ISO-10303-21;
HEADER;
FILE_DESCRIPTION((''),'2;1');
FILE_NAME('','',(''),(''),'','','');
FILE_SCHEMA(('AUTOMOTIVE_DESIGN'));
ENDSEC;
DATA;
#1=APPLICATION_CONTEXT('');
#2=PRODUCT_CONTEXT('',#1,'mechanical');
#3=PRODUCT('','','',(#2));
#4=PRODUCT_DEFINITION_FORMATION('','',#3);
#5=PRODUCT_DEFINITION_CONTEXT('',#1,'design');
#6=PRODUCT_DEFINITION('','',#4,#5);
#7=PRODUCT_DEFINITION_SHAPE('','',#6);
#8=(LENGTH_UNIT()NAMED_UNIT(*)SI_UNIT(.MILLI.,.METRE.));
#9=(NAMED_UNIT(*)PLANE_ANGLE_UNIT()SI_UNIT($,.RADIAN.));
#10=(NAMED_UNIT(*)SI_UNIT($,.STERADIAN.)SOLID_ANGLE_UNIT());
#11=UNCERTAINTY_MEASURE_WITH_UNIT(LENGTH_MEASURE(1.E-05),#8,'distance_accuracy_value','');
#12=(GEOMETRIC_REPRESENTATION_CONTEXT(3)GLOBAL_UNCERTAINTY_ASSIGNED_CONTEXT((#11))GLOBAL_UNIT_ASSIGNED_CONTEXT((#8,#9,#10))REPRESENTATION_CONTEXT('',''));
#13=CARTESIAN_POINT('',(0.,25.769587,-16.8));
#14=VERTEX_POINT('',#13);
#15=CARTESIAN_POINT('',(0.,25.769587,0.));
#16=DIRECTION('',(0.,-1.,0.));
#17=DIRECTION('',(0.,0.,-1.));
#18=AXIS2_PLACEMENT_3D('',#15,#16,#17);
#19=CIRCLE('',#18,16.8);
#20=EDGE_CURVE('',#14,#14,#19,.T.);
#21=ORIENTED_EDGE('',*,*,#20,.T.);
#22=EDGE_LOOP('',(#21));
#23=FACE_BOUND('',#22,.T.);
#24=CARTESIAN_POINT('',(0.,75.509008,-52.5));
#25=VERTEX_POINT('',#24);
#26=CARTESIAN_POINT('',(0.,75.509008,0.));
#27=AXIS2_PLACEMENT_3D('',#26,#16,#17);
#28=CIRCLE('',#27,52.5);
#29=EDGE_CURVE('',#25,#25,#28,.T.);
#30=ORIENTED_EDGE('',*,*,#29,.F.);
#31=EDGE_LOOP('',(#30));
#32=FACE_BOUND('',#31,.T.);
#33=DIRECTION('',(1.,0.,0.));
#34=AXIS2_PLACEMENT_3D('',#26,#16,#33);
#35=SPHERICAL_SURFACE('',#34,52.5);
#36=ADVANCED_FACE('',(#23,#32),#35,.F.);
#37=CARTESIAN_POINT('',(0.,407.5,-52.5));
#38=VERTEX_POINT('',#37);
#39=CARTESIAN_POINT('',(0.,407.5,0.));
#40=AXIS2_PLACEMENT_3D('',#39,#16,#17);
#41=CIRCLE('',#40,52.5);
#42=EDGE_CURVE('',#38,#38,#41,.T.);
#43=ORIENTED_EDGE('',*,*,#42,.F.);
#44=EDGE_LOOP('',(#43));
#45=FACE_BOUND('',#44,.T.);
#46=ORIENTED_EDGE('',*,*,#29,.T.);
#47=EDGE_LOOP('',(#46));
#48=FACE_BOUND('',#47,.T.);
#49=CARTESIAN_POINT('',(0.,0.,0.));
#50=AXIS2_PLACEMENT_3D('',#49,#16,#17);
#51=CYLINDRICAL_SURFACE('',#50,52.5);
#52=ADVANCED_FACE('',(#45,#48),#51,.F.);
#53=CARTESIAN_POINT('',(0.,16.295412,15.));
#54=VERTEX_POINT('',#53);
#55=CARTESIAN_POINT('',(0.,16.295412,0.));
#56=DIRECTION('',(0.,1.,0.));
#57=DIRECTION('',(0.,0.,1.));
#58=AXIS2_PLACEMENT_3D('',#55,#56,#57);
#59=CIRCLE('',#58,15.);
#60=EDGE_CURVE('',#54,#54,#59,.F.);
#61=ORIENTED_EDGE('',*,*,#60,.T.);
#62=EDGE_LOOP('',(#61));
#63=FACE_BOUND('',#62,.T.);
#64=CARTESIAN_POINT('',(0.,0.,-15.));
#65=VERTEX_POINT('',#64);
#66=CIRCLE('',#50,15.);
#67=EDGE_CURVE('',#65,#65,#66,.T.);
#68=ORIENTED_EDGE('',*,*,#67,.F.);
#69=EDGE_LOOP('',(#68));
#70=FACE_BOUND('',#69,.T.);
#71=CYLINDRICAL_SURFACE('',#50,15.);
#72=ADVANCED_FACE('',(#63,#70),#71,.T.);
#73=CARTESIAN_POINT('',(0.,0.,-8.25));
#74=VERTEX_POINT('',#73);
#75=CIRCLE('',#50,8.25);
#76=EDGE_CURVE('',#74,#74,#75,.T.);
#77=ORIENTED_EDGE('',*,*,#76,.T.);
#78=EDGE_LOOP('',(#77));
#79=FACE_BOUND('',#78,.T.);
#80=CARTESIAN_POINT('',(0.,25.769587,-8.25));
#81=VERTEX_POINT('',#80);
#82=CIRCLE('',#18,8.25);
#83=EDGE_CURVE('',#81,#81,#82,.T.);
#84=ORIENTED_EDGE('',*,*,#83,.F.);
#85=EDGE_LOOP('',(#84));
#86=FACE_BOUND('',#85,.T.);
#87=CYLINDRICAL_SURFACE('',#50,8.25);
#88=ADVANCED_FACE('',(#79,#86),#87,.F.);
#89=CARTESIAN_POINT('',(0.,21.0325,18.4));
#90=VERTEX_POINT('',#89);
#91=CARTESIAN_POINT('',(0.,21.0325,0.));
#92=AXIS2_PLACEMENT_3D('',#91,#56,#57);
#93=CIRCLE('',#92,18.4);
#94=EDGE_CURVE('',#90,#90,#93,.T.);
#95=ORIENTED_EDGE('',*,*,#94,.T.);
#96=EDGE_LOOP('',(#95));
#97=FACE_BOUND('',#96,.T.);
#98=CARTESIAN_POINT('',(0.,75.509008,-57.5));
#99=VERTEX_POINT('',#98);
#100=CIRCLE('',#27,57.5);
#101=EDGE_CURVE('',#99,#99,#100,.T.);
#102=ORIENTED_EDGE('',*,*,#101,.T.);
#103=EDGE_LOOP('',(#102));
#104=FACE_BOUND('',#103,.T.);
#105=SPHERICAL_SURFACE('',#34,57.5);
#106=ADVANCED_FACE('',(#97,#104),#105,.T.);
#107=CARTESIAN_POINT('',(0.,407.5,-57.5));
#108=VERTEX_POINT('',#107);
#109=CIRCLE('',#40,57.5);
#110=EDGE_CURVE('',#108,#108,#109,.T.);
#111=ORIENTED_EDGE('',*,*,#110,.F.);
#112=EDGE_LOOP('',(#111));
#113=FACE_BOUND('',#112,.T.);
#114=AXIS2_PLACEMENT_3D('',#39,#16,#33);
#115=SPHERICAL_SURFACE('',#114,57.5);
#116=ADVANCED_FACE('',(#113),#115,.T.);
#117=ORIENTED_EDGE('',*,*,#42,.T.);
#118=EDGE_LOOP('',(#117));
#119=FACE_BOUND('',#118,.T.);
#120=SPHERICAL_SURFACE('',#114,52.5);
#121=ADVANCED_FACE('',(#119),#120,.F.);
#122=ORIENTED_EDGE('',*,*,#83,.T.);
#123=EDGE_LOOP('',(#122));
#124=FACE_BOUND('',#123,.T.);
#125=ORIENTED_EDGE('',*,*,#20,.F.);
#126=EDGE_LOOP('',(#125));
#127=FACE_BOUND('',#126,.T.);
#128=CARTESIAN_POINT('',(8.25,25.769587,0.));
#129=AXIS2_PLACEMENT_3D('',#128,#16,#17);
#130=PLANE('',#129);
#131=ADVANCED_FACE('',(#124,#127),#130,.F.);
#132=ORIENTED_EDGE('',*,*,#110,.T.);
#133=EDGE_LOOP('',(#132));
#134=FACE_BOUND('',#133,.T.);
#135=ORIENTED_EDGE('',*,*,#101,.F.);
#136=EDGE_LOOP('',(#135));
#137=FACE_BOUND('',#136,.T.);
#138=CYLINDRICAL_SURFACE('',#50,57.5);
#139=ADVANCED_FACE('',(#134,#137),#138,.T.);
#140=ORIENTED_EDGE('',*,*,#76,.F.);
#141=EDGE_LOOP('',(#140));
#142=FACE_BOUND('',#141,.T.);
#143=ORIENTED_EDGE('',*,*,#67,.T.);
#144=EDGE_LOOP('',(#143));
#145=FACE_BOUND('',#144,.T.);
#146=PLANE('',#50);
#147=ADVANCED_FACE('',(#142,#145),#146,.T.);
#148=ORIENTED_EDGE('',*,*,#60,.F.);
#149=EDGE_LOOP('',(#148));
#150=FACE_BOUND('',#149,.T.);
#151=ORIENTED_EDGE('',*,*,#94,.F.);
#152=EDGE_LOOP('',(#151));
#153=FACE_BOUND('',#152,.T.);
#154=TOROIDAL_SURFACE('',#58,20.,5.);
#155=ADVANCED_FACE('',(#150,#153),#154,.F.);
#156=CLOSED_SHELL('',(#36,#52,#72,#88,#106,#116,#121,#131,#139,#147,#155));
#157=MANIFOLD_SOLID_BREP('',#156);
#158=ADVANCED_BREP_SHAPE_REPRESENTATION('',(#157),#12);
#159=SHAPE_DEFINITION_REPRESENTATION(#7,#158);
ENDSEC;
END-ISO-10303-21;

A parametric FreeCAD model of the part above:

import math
import FreeCAD as App
import Part
import Sketcher
from FreeCAD import Vector


def edges_at(feature, points):
    """Names of the edges that pass closest to the given points."""
    edges = feature.Shape.Edges
    near = lambda p: min(range(len(edges)), key=lambda i: edges[i].distToShape(Part.Vertex(*p))[0])
    return sorted({f"Edge{near(p) + 1}" for p in points})

doc = App.newDocument("Part")
body = doc.addObject("PartDesign::Body", "Body")

sketch1 = body.newObject("Sketcher::SketchObject", "Sketch")
sketch1.AttachmentSupport = (doc.getObject("XY_Plane"), [""])
sketch1.MapMode = "FlatFace"
sketch1.addGeometry([
    Part.LineSegment(Vector(0, 0, 0), Vector(15, 0, 0)),
    Part.LineSegment(Vector(15, 0, 0), Vector(15, 20, 0)),
    Part.ArcOfCircle(Part.Circle(Vector(0, 76, 0), Vector(0, 0, 1), 58), math.radians(-75), math.radians(0)),
    Part.LineSegment(Vector(58, 76, 0), Vector(58, 408, 0)),
    Part.ArcOfCircle(Part.Circle(Vector(0, 407, 0), Vector(0, 0, 1), 58), math.radians(0), math.radians(90)),
    Part.LineSegment(Vector(0, 465, 0), Vector(0, 0, 0)),
], False)
sketch1.addConstraint([
    Sketcher.Constraint("Coincident", 0, 2, 1, 1),
    Sketcher.Constraint("Coincident", 1, 2, 2, 1),
    Sketcher.Constraint("Tangent", 2, 2, 3, 1),
    Sketcher.Constraint("Tangent", 3, 2, 4, 1),
    Sketcher.Constraint("Coincident", 4, 2, 5, 1),
    Sketcher.Constraint("Coincident", 5, 2, 0, 1),
    Sketcher.Constraint("Horizontal", 0),
    Sketcher.Constraint("Vertical", 1),
    Sketcher.Constraint("Vertical", 3),
    Sketcher.Constraint("Vertical", 5),
    Sketcher.Constraint("Coincident", 5, 2, -1, 1),
    Sketcher.Constraint("Equal", 2, 4),
    Sketcher.Constraint("PointOnObject", 2, 3, -2),
    Sketcher.Constraint("Radius", 2, 57.5),
    Sketcher.Constraint("DistanceX", 0, 1, 0, 2, 15.0),
    Sketcher.Constraint("DistanceY", 1, 1, 1, 2, 20.0),
    Sketcher.Constraint("DistanceY", 5, 2, 5, 1, 465.0),
])
revolution = body.newObject("PartDesign::Revolution", "Revolution")
revolution.Profile = sketch1
revolution.ReferenceAxis = (sketch1, ["V_Axis"])
revolution.Angle = 360

sketch2 = body.newObject("Sketcher::SketchObject", "Sketch001")
sketch2.AttachmentSupport = (doc.getObject("XZ_Plane"), [""])
sketch2.MapMode = "FlatFace"
sketch2.addGeometry(Part.Circle(Vector(0, 0, 0), Vector(0, 0, 1), 8), False)
sketch2.addConstraint([
    Sketcher.Constraint("Coincident", 0, 3, -1, 1),
    Sketcher.Constraint("Diameter", 0, 16.5),
])
doc.recompute()
hole = body.newObject("PartDesign::Hole", "Hole")
hole.Profile = sketch2
hole.ThreadType = "None"
hole.Diameter = 16.5
hole.DepthType = "Dimension"
hole.Depth = 15.0429
hole.DrillPoint = "Angled"
hole.DrillPointAngle = 118
doc.recompute()

fillet = body.newObject("PartDesign::Fillet", "Fillet")
fillet.Base = (hole, edges_at(hole, [(0, 20, 15)]))
fillet.Radius = 5

sketch3 = body.newObject("Sketcher::SketchObject", "Sketch002")
sketch3.AttachmentSupport = (doc.getObject("XY_Plane"), [""])
sketch3.MapMode = "FlatFace"
sketch3.addGeometry([
    Part.LineSegment(Vector(8, 15, 0), Vector(8, 26, 0)),
    Part.LineSegment(Vector(8, 26, 0), Vector(17, 26, 0)),
    Part.ArcOfCircle(Part.Circle(Vector(0, 76, 0), Vector(0, 0, 1), 53), math.radians(-71), math.radians(0)),
    Part.LineSegment(Vector(52, 76, 0), Vector(52, 408, 0)),
    Part.ArcOfCircle(Part.Circle(Vector(0, 407, 0), Vector(0, 0, 1), 53), math.radians(0), math.radians(90)),
    Part.LineSegment(Vector(0, 460, 0), Vector(0, 15, 0)),
    Part.LineSegment(Vector(0, 15, 0), Vector(8, 15, 0)),
], False)
sketch3.addConstraint([
    Sketcher.Constraint("Coincident", 0, 2, 1, 1),
    Sketcher.Constraint("Coincident", 1, 2, 2, 1),
    Sketcher.Constraint("Tangent", 2, 2, 3, 1),
    Sketcher.Constraint("Tangent", 3, 2, 4, 1),
    Sketcher.Constraint("Coincident", 4, 2, 5, 1),
    Sketcher.Constraint("Coincident", 5, 2, 6, 1),
    Sketcher.Constraint("Coincident", 6, 2, 0, 1),
    Sketcher.Constraint("Vertical", 0),
    Sketcher.Constraint("Horizontal", 1),
    Sketcher.Constraint("Vertical", 3),
    Sketcher.Constraint("Vertical", 5),
    Sketcher.Constraint("Horizontal", 6),
    Sketcher.Constraint("Equal", 2, 4),
    Sketcher.Constraint("PointOnObject", 2, 3, -2),
    Sketcher.Constraint("PointOnObject", 4, 2, -2),
    Sketcher.Constraint("Radius", 2, 52.5),
    Sketcher.Constraint("DistanceY", -1, 1, 4, 2, 460.0),
    Sketcher.Constraint("DistanceX", 1, 1, 1, 2, 8.55),
    Sketcher.Constraint("DistanceX", 6, 1, 6, 2, 8.25),
    Sketcher.Constraint("DistanceY", 5, 2, 5, 1, 444.9571),
    Sketcher.Constraint("DistanceY", 3, 1, 3, 2, 331.990992),
])
groove = body.newObject("PartDesign::Groove", "Groove")
groove.Profile = sketch3
groove.ReferenceAxis = (sketch3, ["V_Axis"])
groove.Angle = 360

doc.recompute()
